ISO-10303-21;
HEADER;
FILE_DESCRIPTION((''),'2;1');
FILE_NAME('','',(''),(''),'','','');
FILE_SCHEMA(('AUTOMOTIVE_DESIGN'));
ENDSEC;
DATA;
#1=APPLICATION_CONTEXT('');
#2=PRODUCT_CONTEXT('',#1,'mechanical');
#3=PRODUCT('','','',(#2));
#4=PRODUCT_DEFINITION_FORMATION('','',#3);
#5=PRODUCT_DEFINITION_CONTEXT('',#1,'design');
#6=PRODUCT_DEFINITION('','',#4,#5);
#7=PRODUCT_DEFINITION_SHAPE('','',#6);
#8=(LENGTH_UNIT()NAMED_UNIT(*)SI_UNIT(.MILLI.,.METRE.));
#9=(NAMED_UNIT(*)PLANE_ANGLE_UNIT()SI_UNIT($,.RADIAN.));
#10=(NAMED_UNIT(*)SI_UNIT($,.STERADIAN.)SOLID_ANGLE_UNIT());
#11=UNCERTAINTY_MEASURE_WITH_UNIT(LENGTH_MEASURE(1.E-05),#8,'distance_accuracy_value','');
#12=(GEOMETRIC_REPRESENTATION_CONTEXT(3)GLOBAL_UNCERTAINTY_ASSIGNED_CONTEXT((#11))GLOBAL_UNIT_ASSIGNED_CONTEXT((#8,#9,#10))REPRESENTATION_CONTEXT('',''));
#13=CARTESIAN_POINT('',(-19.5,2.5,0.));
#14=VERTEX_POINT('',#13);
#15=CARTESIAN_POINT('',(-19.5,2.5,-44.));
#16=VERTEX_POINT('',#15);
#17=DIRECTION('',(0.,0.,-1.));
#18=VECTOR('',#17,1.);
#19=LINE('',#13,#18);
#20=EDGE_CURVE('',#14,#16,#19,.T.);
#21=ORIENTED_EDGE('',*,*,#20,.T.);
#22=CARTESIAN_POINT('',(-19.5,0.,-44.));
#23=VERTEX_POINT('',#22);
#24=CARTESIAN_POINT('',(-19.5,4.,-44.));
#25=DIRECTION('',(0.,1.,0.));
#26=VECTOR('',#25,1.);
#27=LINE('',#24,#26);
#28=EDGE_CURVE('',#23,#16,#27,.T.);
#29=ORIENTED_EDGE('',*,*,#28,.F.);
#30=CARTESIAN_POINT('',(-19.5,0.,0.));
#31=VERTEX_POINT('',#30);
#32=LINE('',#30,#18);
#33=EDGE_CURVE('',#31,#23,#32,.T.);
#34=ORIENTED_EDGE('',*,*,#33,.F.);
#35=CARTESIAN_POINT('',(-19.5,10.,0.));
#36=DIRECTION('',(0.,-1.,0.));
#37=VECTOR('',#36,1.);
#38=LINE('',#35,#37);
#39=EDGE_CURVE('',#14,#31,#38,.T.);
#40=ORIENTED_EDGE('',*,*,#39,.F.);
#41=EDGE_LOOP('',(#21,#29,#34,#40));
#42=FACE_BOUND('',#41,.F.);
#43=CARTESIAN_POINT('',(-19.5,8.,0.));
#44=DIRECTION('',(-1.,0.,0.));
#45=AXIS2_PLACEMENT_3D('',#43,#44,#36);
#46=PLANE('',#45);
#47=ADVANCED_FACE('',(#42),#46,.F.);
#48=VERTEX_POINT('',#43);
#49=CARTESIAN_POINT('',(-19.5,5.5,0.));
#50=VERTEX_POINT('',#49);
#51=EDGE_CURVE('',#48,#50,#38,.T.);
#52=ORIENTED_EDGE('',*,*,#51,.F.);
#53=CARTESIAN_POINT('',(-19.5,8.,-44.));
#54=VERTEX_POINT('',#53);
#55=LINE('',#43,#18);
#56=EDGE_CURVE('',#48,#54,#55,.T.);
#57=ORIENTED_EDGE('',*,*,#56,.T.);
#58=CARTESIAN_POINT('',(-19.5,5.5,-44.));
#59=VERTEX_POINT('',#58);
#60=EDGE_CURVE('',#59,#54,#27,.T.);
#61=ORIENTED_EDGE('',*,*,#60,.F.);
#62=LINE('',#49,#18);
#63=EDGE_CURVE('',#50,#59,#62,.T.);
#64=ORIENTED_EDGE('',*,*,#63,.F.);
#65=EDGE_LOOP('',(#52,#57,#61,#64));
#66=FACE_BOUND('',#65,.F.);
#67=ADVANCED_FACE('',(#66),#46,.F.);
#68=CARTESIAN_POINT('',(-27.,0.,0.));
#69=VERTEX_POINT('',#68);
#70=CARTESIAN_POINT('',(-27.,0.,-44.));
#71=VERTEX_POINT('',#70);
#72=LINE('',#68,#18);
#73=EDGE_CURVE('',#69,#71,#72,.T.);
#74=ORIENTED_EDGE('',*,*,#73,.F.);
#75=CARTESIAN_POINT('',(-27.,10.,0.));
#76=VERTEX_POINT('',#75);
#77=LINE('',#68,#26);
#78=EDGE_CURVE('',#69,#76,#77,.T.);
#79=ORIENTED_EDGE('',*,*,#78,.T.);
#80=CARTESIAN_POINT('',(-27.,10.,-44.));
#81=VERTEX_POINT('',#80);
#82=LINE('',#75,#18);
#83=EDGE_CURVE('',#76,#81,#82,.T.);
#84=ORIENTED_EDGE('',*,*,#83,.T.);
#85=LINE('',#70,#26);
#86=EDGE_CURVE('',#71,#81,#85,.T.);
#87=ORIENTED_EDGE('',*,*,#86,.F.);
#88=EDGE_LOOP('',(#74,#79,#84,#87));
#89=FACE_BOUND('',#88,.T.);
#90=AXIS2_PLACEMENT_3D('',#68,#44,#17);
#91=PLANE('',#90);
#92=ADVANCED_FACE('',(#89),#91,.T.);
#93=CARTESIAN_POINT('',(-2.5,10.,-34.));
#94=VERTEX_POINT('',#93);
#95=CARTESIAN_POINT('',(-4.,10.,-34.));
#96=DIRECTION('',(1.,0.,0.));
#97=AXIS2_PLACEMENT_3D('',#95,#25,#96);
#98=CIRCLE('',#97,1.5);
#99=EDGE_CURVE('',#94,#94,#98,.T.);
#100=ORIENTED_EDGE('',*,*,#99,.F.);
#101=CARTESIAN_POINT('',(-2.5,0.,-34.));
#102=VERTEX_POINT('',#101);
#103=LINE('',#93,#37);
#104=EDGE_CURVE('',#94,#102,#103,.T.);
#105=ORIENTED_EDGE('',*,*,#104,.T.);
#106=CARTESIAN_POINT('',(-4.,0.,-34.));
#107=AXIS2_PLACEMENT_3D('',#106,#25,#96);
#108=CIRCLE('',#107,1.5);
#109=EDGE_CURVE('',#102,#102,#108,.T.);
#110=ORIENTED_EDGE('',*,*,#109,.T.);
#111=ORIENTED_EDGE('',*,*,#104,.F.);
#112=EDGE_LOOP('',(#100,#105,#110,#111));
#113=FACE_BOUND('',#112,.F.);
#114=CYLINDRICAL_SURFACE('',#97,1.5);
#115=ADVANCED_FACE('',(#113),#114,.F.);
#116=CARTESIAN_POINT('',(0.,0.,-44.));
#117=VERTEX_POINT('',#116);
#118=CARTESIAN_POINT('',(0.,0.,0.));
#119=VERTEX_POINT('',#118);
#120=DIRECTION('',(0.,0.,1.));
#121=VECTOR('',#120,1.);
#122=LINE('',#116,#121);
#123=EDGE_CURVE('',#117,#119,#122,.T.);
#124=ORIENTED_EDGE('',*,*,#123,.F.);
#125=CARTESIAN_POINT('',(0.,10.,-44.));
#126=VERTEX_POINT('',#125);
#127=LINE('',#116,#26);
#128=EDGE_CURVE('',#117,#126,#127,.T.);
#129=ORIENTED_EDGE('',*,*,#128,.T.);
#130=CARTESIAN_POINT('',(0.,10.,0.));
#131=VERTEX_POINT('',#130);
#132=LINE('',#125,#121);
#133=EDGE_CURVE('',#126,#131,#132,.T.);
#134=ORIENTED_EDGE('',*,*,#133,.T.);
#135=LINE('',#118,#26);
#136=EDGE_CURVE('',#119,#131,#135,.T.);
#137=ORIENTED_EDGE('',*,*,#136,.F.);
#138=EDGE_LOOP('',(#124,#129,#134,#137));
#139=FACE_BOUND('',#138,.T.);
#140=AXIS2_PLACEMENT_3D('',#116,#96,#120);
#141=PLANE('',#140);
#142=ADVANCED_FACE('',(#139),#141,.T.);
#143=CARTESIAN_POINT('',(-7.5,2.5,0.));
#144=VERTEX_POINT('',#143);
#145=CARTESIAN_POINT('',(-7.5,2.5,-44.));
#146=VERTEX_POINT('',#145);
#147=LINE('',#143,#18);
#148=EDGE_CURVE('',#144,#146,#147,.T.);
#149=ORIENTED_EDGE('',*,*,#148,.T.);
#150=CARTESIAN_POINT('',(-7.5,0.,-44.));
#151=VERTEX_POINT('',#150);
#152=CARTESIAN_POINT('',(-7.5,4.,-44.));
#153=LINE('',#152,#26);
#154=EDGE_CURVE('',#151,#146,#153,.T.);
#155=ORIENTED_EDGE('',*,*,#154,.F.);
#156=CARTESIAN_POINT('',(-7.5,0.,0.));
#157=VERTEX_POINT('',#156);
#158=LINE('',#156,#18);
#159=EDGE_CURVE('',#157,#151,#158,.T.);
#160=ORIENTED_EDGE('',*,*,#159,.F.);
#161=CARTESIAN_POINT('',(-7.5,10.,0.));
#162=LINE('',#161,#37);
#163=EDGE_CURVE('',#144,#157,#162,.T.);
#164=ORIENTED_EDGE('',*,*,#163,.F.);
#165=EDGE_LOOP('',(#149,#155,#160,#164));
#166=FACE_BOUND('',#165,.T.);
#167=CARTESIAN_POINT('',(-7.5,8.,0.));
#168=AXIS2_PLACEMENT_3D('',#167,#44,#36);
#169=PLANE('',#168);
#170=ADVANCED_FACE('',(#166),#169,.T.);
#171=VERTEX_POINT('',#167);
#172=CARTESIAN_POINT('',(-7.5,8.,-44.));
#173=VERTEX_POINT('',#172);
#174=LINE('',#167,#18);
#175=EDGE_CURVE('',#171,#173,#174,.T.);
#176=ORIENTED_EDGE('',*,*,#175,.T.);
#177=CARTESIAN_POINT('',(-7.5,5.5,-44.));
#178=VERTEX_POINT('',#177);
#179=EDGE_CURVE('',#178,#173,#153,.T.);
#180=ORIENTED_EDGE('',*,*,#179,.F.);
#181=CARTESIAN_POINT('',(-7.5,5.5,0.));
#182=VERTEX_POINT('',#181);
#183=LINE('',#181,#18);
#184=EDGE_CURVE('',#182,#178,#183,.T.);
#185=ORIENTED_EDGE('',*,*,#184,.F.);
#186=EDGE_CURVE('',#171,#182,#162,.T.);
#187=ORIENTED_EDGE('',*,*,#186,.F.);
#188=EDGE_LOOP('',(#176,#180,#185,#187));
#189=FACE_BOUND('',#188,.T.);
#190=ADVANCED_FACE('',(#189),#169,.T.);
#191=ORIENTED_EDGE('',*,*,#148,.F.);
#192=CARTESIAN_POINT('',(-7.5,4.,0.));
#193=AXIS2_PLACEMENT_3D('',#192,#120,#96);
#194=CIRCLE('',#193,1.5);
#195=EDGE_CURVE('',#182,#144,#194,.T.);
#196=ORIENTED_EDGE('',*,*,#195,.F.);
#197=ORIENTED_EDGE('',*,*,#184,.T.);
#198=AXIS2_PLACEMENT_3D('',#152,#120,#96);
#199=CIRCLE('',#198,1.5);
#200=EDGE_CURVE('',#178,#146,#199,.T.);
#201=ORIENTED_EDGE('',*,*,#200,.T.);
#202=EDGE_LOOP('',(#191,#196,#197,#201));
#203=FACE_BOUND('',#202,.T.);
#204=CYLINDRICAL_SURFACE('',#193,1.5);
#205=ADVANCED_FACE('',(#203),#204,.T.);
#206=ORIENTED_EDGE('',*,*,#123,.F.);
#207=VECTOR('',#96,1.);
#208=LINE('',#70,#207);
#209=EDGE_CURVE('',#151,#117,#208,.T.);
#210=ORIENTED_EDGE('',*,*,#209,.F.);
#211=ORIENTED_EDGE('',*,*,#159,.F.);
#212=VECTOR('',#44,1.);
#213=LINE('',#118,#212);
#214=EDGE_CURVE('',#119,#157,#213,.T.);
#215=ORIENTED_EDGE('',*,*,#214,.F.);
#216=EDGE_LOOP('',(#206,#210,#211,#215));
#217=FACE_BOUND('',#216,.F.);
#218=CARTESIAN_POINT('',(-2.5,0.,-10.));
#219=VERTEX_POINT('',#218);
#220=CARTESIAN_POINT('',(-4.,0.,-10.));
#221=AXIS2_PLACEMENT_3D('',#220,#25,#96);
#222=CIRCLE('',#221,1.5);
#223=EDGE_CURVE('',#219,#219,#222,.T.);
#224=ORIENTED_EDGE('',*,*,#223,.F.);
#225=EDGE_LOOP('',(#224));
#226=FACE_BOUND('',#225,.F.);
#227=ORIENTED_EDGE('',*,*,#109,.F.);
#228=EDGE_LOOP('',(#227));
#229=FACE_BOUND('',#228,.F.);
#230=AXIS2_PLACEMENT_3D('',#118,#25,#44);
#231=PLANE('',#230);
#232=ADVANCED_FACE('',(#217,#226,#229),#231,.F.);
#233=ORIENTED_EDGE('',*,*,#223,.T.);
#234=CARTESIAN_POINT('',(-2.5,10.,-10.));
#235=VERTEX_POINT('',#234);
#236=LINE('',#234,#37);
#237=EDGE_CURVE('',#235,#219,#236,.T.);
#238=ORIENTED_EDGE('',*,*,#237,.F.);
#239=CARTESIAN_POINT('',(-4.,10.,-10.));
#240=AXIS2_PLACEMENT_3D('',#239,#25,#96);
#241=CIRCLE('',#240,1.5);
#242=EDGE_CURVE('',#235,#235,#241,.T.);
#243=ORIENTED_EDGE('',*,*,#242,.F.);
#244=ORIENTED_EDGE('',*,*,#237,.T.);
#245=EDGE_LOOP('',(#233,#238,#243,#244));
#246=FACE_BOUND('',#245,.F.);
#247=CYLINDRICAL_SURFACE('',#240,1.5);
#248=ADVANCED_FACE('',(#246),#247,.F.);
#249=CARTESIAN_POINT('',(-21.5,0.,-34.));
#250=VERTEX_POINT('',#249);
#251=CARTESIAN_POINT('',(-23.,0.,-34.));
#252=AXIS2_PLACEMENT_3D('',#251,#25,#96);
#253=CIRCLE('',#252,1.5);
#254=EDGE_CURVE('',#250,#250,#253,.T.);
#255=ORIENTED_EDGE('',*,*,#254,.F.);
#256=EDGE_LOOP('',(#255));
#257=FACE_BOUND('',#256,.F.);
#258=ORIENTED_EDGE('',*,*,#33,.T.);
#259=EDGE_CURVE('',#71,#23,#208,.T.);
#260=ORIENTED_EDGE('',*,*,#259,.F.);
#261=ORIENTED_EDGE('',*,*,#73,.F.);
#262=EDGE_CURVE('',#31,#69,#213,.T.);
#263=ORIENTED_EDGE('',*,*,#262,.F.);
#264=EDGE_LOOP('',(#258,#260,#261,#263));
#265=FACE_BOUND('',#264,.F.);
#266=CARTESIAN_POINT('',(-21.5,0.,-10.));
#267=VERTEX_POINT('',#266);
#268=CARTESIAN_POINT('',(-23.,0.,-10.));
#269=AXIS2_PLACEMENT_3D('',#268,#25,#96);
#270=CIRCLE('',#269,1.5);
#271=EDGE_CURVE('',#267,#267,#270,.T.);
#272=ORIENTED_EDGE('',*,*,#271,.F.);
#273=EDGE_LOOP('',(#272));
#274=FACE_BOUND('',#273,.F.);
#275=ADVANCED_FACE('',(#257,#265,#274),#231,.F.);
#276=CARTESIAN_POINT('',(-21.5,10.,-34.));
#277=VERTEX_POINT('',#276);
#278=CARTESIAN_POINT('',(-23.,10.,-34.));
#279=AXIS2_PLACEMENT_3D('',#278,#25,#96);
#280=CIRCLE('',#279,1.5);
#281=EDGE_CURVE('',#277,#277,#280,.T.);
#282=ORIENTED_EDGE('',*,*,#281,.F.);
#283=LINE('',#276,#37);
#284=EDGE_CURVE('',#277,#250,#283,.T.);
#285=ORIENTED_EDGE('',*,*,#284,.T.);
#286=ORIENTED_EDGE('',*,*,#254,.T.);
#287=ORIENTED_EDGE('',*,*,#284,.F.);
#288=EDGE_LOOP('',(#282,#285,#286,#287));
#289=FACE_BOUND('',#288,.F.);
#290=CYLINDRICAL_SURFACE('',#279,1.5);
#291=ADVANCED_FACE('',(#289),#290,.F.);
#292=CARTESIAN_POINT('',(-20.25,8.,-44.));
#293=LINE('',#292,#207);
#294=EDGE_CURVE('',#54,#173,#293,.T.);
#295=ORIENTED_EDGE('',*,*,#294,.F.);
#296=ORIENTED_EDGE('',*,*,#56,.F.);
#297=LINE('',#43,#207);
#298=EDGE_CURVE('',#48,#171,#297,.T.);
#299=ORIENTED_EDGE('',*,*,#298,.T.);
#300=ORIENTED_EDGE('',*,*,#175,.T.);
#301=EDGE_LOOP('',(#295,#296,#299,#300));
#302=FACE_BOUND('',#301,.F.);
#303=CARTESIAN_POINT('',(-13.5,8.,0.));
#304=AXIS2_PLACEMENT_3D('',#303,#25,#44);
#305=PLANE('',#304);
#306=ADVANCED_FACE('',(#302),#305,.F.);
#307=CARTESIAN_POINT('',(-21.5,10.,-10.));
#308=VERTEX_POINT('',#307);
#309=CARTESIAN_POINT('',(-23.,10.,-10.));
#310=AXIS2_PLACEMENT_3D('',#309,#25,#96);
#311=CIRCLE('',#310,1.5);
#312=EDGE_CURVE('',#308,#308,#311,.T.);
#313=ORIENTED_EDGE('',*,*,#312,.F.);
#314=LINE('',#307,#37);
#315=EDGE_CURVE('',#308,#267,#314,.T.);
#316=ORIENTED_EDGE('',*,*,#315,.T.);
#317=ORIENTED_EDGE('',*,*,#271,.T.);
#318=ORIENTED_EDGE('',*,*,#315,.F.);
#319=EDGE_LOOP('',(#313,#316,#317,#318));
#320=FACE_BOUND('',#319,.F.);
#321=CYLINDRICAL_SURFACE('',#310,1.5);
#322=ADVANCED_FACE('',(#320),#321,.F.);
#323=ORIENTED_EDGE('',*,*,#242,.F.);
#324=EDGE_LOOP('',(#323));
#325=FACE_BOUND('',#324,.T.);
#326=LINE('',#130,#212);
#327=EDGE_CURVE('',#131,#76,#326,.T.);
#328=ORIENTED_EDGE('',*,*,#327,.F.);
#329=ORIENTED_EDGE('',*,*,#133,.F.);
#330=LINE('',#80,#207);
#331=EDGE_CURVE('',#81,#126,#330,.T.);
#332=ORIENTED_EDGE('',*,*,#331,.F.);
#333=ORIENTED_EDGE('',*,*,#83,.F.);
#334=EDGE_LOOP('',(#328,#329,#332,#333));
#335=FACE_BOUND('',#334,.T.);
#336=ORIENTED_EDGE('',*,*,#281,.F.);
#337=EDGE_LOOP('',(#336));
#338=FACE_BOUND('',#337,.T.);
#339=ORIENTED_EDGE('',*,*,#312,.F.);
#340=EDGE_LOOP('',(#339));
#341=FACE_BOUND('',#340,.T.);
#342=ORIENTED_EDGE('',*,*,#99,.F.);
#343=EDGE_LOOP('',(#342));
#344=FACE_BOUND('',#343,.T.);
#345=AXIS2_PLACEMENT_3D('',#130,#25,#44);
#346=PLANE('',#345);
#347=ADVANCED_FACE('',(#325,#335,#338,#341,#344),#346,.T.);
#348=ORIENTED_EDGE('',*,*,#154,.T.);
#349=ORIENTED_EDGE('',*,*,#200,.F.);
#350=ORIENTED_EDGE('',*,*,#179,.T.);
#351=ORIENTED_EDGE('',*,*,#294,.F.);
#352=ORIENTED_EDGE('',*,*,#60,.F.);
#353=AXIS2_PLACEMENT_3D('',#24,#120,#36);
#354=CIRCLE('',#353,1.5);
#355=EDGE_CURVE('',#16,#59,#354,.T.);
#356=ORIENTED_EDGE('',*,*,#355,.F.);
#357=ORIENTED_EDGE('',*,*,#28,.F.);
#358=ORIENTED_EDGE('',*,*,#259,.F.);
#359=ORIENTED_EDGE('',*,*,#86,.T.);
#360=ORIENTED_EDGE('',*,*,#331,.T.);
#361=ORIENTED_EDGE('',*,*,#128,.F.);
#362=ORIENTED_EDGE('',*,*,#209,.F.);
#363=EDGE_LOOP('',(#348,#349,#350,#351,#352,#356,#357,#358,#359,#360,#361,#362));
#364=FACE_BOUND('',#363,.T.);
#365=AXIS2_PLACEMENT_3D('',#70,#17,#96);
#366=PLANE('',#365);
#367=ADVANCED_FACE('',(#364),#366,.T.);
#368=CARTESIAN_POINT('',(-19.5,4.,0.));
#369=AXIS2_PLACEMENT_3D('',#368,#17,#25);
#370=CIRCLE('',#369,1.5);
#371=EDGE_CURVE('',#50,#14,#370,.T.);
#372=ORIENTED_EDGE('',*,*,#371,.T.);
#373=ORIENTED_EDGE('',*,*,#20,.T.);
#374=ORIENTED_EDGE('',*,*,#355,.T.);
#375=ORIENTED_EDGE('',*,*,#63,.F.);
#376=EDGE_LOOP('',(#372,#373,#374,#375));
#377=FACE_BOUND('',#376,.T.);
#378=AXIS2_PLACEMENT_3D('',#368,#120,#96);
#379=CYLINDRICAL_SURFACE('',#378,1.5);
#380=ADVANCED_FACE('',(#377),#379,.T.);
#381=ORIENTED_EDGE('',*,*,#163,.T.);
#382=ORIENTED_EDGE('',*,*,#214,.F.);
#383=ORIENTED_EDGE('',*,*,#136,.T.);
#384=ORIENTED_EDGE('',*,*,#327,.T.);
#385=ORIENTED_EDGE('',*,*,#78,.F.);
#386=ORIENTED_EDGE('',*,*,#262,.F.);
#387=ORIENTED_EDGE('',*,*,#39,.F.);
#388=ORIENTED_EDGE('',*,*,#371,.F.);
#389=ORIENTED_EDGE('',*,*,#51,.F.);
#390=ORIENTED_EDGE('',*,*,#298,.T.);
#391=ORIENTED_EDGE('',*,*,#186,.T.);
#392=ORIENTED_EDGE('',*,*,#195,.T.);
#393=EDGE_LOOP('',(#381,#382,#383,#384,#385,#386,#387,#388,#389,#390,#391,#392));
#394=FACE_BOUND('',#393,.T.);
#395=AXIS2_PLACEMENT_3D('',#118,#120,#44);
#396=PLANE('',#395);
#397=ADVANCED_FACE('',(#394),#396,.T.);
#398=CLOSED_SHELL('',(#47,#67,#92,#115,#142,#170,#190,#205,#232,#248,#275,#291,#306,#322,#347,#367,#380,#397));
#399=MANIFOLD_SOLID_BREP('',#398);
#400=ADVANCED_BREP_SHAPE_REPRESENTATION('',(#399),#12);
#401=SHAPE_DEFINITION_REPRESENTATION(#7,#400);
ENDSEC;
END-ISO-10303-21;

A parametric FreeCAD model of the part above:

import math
import FreeCAD as App
import Part
import Sketcher

V = App.Vector
Q = App.Units.Quantity


def add_polygon(sketch, points):
    """Adds a closed chain of lines whose ends are joined by coincident constraints."""
    first, n = sketch.GeometryCount, len(points)
    for a, b in zip(points, points[1:] + points[:1]):
        sketch.addGeometry(Part.LineSegment(App.Vector(*a, 0), App.Vector(*b, 0)), False)
    for i in range(n):
        sketch.addConstraint(Sketcher.Constraint("Coincident", first + i, 2, first + (i + 1) % n, 1))

doc = App.newDocument("Part")
body = doc.addObject("PartDesign::Body", "Body")

sketch1 = body.newObject("Sketcher::SketchObject", "Sketch")
sketch1.AttachmentSupport = (doc.getObject("XZ_Plane"), [""])
sketch1.MapMode = "FlatFace"
add_polygon(sketch1, [(-27, 0), (0, 0), (0, -44), (-27, -44)])
sketch1.addConstraint(Sketcher.Constraint("Horizontal", 0))
sketch1.addConstraint(Sketcher.Constraint("Vertical", 1))
sketch1.addConstraint(Sketcher.Constraint("Horizontal", 2))
sketch1.addConstraint(Sketcher.Constraint("Vertical", 3))
sketch1.addConstraint(Sketcher.Constraint("Coincident", 0, 2, -1, 1))
sketch1.addConstraint(Sketcher.Constraint("DistanceX", 0, 1, 0, 2, Q("27 mm")))
sketch1.addConstraint(Sketcher.Constraint("DistanceY", 1, 2, 1, 1, Q("44 mm")))
pad1 = body.newObject("PartDesign::Pad", "Pad")
pad1.Profile = sketch1
pad1.Length = 10
pad1.Reversed = True

sketch2 = body.newObject("Sketcher::SketchObject", "Sketch001")
sketch2.AttachmentSupport = (doc.getObject("XY_Plane"), [""])
sketch2.MapMode = "FlatFace"
add_polygon(sketch2, [(-20, 8), (-20, 0), (-8, 0), (-8, 8)])
sketch2.addConstraint(Sketcher.Constraint("Vertical", 0))
sketch2.addConstraint(Sketcher.Constraint("Horizontal", 1))
sketch2.addConstraint(Sketcher.Constraint("Vertical", 2))
sketch2.addConstraint(Sketcher.Constraint("Horizontal", 3))
sketch2.addConstraint(Sketcher.Constraint("PointOnObject", 0, 2, -1))
sketch2.addConstraint(Sketcher.Constraint("DistanceX", 1, 1, 1, 2, Q("12 mm")))
sketch2.addConstraint(Sketcher.Constraint("DistanceY", 0, 2, 0, 1, Q("8 mm")))
sketch2.addConstraint(Sketcher.Constraint("DistanceX", 0, 2, -1, 1, Q("19.5 mm")))
pocket1 = body.newObject("PartDesign::Pocket", "Pocket")
pocket1.Profile = sketch2
pocket1.Type = "ThroughAll"

sketch3 = body.newObject("Sketcher::SketchObject", "Sketch002")
sketch3.AttachmentSupport = (doc.getObject("XY_Plane"), [""])
sketch3.MapMode = "FlatFace"
sketch3.addGeometry(Part.LineSegment(V(-19.5, 5.5, 0), V(-19.5, 2.5, 0)), False)
sketch3.addGeometry(Part.ArcOfCircle(Part.Circle(V(-19.5, 4, 0), V(0, 0, 1), 1.5), math.radians(-90), math.radians(90)), False)
sketch3.addGeometry(Part.LineSegment(V(-7.5, 2.5, 0), V(-7.5, 5.5, 0)), False)
sketch3.addGeometry(Part.ArcOfCircle(Part.Circle(V(-7.5, 4, 0), V(0, 0, 1), 1.5), math.radians(90), math.radians(270)), False)
sketch3.addConstraint(Sketcher.Constraint("Coincident", 0, 1, 1, 2))
sketch3.addConstraint(Sketcher.Constraint("Coincident", 1, 1, 0, 2))
sketch3.addConstraint(Sketcher.Constraint("Coincident", 2, 1, 3, 2))
sketch3.addConstraint(Sketcher.Constraint("Coincident", 3, 1, 2, 2))
sketch3.addConstraint(Sketcher.Constraint("Vertical", 0))
sketch3.addConstraint(Sketcher.Constraint("Vertical", 2))
sketch3.addConstraint(Sketcher.Constraint("Equal", 1, 3))
sketch3.addConstraint(Sketcher.Constraint("Horizontal", 1, 3, 3, 3))
sketch3.addConstraint(Sketcher.Constraint("Vertical", 1, 3, 0, 1))
sketch3.addConstraint(Sketcher.Constraint("Vertical", 3, 3, 2, 1))
sketch3.addConstraint(Sketcher.Constraint("Radius", 1, Q("1.5 mm")))
sketch3.addConstraint(Sketcher.Constraint("DistanceY", -1, 1, 1, 3, Q("4 mm")))
sketch3.addConstraint(Sketcher.Constraint("DistanceX", 1, 3, 3, 3, Q("12 mm")))
sketch3.addConstraint(Sketcher.Constraint("DistanceX", 1, 3, -1, 1, Q("19.5 mm")))
pad2 = body.newObject("PartDesign::Pad", "Pad001")
pad2.Profile = sketch3
pad2.Length = 44
pad2.Reversed = True

sketch4 = body.newObject("Sketcher::SketchObject", "Sketch003")
sketch4.AttachmentSupport = (doc.getObject("XZ_Plane"), [""])
sketch4.MapMode = "FlatFace"
sketch4.AttachmentOffset = App.Placement(V(0, 0, -10), App.Rotation())
sketch4.addGeometry(Part.Circle(V(-23, -34, 0), V(0, 0, 1), 1.5), False)
sketch4.addGeometry(Part.Circle(V(-4, -34, 0), V(0, 0, 1), 1.5), False)
sketch4.addGeometry(Part.Circle(V(-23, -10, 0), V(0, 0, 1), 1.5), False)
sketch4.addGeometry(Part.Circle(V(-4, -10, 0), V(0, 0, 1), 1.5), False)
sketch4.addConstraint(Sketcher.Constraint("Equal", 0, 1))
sketch4.addConstraint(Sketcher.Constraint("Equal", 1, 2))
sketch4.addConstraint(Sketcher.Constraint("Equal", 2, 3))
sketch4.addConstraint(Sketcher.Constraint("Horizontal", 0, 3, 1, 3))
sketch4.addConstraint(Sketcher.Constraint("Horizontal", 2, 3, 3, 3))
sketch4.addConstraint(Sketcher.Constraint("Vertical", 0, 3, 2, 3))
sketch4.addConstraint(Sketcher.Constraint("Vertical", 1, 3, 3, 3))
sketch4.addConstraint(Sketcher.Constraint("Diameter", 0, Q("3 mm")))
sketch4.addConstraint(Sketcher.Constraint("DistanceX", 0, 3, -1, 1, Q("23 mm")))
sketch4.addConstraint(Sketcher.Constraint("DistanceY", 0, 3, -1, 1, Q("34 mm")))
sketch4.addConstraint(Sketcher.Constraint("DistanceX", 1, 3, -1, 1, Q("4 mm")))
sketch4.addConstraint(Sketcher.Constraint("DistanceY", 2, 3, -1, 1, Q("10 mm")))
pocket2 = body.newObject("PartDesign::Pocket", "Pocket001")
pocket2.Profile = sketch4
pocket2.Length = 10
pocket2.Reversed = True

doc.recompute()
